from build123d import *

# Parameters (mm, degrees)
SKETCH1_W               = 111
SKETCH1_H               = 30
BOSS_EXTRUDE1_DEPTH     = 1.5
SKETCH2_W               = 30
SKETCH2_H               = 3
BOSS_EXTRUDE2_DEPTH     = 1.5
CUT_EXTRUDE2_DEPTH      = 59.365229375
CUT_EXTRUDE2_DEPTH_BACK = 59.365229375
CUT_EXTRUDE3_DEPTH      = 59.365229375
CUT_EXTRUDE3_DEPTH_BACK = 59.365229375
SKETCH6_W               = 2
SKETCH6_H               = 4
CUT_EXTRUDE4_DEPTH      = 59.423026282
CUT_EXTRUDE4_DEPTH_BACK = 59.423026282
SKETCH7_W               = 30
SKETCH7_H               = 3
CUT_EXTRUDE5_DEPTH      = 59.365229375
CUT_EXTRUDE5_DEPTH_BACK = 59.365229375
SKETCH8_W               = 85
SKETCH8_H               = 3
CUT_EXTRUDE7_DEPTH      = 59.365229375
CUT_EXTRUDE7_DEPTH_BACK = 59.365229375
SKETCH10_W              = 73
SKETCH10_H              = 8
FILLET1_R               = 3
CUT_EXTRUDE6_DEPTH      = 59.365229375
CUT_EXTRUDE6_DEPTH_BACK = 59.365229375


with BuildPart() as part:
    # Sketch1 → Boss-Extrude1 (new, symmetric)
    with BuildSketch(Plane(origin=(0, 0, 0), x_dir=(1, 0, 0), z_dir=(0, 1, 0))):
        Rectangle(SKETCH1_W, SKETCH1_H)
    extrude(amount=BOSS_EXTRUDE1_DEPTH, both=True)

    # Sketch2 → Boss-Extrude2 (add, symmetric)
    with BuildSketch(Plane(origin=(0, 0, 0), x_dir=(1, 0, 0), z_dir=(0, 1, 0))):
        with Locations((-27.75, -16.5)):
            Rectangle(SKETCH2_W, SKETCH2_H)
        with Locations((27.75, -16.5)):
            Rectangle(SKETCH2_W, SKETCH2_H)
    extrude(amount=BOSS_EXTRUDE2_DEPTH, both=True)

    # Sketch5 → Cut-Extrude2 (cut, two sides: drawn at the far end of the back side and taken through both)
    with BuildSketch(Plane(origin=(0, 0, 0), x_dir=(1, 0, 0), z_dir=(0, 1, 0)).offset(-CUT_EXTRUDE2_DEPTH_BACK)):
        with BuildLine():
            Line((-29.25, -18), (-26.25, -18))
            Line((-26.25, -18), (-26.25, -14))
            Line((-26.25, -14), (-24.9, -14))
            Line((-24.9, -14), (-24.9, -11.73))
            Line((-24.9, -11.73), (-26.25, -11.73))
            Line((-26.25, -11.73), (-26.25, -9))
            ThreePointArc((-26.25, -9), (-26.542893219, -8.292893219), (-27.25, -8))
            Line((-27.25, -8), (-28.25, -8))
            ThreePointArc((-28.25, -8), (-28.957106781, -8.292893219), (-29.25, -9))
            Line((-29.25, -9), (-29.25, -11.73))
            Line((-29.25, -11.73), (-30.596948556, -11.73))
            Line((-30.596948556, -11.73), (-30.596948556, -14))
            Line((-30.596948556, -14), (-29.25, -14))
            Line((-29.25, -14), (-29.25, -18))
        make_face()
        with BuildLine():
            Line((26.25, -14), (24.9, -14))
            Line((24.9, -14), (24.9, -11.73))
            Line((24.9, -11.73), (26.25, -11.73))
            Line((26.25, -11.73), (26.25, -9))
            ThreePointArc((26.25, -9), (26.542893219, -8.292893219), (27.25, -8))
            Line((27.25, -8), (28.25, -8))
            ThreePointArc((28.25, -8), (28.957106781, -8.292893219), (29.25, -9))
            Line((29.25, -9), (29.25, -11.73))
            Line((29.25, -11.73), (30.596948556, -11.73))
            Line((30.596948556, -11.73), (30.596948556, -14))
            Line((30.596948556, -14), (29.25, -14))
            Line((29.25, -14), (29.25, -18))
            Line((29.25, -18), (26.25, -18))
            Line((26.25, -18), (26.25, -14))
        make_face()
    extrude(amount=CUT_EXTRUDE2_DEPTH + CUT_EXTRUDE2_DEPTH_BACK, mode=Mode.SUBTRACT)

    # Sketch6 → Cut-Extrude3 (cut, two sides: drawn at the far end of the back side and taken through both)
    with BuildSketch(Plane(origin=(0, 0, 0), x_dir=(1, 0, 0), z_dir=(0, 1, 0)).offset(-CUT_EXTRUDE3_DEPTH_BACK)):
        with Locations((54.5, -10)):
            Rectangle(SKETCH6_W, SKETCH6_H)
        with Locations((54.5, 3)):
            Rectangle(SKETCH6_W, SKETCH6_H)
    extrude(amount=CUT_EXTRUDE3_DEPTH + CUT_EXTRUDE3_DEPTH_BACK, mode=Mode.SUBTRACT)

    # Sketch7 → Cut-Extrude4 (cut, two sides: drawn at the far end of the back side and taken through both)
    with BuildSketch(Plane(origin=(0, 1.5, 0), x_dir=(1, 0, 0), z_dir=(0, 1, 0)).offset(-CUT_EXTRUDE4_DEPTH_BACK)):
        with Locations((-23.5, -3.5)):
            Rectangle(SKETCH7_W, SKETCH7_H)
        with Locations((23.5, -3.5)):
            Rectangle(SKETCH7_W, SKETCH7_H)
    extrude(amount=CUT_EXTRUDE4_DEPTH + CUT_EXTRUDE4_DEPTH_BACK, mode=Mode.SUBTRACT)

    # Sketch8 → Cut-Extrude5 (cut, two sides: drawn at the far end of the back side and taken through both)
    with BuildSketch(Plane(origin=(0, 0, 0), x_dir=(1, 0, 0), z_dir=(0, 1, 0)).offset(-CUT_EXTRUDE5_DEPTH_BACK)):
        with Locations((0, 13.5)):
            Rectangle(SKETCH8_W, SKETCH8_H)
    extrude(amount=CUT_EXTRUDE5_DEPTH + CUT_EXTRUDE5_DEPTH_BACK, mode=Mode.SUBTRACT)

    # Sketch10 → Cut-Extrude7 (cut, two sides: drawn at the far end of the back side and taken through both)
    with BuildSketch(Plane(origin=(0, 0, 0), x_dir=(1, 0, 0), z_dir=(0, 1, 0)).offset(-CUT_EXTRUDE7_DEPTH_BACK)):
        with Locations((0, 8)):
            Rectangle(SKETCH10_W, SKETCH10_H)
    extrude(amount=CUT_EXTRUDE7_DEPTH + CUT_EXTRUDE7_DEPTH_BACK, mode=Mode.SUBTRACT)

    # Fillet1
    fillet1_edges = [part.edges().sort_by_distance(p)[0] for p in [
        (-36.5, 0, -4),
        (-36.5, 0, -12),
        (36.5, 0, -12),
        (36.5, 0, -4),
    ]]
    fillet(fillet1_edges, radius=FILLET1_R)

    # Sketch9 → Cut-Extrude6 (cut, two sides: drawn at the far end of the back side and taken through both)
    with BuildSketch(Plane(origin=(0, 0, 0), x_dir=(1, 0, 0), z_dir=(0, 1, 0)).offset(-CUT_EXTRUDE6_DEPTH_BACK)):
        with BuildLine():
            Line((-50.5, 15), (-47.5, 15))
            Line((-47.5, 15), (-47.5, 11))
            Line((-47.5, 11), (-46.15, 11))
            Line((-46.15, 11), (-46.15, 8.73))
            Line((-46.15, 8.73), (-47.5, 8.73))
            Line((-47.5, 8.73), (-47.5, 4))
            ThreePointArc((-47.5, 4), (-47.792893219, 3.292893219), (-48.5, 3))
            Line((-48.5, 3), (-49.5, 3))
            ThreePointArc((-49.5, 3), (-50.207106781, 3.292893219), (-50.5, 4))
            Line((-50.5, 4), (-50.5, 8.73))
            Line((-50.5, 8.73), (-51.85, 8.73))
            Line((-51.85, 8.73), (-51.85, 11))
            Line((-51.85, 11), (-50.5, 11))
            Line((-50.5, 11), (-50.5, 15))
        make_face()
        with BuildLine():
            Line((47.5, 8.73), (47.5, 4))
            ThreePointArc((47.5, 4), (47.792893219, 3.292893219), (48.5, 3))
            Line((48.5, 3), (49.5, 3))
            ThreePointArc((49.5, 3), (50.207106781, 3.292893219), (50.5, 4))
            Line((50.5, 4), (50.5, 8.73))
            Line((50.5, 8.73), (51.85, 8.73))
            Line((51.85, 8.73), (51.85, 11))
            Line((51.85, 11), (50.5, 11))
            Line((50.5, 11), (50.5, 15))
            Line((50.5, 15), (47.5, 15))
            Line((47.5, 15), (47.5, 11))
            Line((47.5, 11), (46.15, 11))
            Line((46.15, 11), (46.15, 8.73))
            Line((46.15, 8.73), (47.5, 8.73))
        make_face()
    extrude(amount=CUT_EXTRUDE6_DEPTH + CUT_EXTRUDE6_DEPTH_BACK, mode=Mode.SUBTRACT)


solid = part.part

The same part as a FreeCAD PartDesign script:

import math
import FreeCAD as App
import Part
import Sketcher

V = App.Vector
Q = App.Units.Quantity


def edges_at(feature, points):
    """Names of the edges that pass closest to the given points."""
    edges = feature.Shape.Edges
    near = lambda p: min(range(len(edges)), key=lambda i: edges[i].distToShape(Part.Vertex(*p))[0])
    return sorted({f"Edge{near(p) + 1}" for p in points})

doc = App.newDocument("Part")
params = doc.addObject("Spreadsheet::Sheet", "Params")
for row, (alias, value) in enumerate([
    ("sketch1_width", "111 mm"),
    ("sketch1_height", "30 mm"),
    ("pad1_length", "3 mm"),
    ("sketch2_width", "30 mm"),
    ("sketch2_height", "3 mm"),
    ("pad2_length", "3 mm"),
    ("sketch3_radius", "1 mm"),
    ("sketch3_width", "3 mm"),
    ("sketch3_height", "4 mm"),
    ("sketch3_width2", "1.35 mm"),
    ("sketch3_height2", "2.27 mm"),
    ("sketch4_width", "2 mm"),
    ("sketch4_height", "4 mm"),
    ("sketch5_width", "30 mm"),
    ("sketch5_height", "3 mm"),
    ("sketch6_width", "85 mm"),
    ("sketch6_height", "3 mm"),
    ("sketch7_width", "73 mm"),
    ("sketch7_height", "8 mm"),
    ("fillet_radius", "3 mm"),
    ("sketch8_radius", "1 mm"),
    ("sketch8_width", "3 mm"),
    ("sketch8_height", "4 mm"),
    ("sketch8_width2", "1.35 mm"),
    ("sketch8_height2", "2.27 mm"),
], start=1):
    params.set(f"A{row}", alias)
    params.set(f"B{row}", "=" + value)
    params.setAlias(f"B{row}", alias)

body = doc.addObject("PartDesign::Body", "Body")

# Sketch on XZ plane
sketch1 = body.newObject("Sketcher::SketchObject", "Sketch")
sketch1.AttachmentSupport = (doc.getObject("XZ_Plane"), [""])
sketch1.MapMode = "FlatFace"
sketch1.addGeometry(Part.LineSegment(V(-56, -15, 0), V(-56, 15, 0)), False)
sketch1.addGeometry(Part.LineSegment(V(-56, 15, 0), V(56, 15, 0)), False)
sketch1.addGeometry(Part.LineSegment(V(56, 15, 0), V(56, -15, 0)), False)
sketch1.addGeometry(Part.LineSegment(V(56, -15, 0), V(-56, -15, 0)), False)
sketch1.addConstraint(Sketcher.Constraint("Coincident", 0, 2, 1, 1))
sketch1.addConstraint(Sketcher.Constraint("Coincident", 1, 2, 2, 1))
sketch1.addConstraint(Sketcher.Constraint("Coincident", 2, 2, 3, 1))
sketch1.addConstraint(Sketcher.Constraint("Coincident", 3, 2, 0, 1))
sketch1.addConstraint(Sketcher.Constraint("Vertical", 0))
sketch1.addConstraint(Sketcher.Constraint("Horizontal", 1))
sketch1.addConstraint(Sketcher.Constraint("Vertical", 2))
sketch1.addConstraint(Sketcher.Constraint("Horizontal", 3))
sketch1.addConstraint(Sketcher.Constraint("Symmetric", 0, 2, 2, 2, -1, 1))
sketch1.addConstraint(Sketcher.Constraint("DistanceX", 1, 1, 1, 2, Q("111 mm")))
sketch1.addConstraint(Sketcher.Constraint("DistanceY", 0, 1, 0, 2, Q("30 mm")))
sketch1.setExpression("Constraints[9]", "Params.sketch1_width")
sketch1.setExpression("Constraints[10]", "Params.sketch1_height")
pad1 = body.newObject("PartDesign::Pad", "Pad")
pad1.Profile = sketch1
pad1.setExpression("Length", "Params.pad1_length")
pad1.Midplane = True

# Sketch on XZ plane
sketch2 = body.newObject("Sketcher::SketchObject", "Sketch001")
sketch2.AttachmentSupport = (doc.getObject("XZ_Plane"), [""])
sketch2.MapMode = "FlatFace"
sketch2.addGeometry(Part.LineSegment(V(-42.8, 15, 0), V(-42.8, 18, 0)), False)
sketch2.addGeometry(Part.LineSegment(V(-42.8, 18, 0), V(-12.8, 18, 0)), False)
sketch2.addGeometry(Part.LineSegment(V(-12.8, 18, 0), V(-12.8, 15, 0)), False)
sketch2.addGeometry(Part.LineSegment(V(-12.8, 15, 0), V(-42.8, 15, 0)), False)
sketch2.addGeometry(Part.LineSegment(V(12.8, 15, 0), V(12.8, 18, 0)), False)
sketch2.addGeometry(Part.LineSegment(V(12.8, 18, 0), V(42.8, 18, 0)), False)
sketch2.addGeometry(Part.LineSegment(V(42.8, 18, 0), V(42.8, 15, 0)), False)
sketch2.addGeometry(Part.LineSegment(V(42.8, 15, 0), V(12.8, 15, 0)), False)
sketch2.addConstraint(Sketcher.Constraint("Coincident", 0, 2, 1, 1))
sketch2.addConstraint(Sketcher.Constraint("Coincident", 1, 2, 2, 1))
sketch2.addConstraint(Sketcher.Constraint("Coincident", 2, 2, 3, 1))
sketch2.addConstraint(Sketcher.Constraint("Coincident", 3, 2, 0, 1))
sketch2.addConstraint(Sketcher.Constraint("Coincident", 4, 2, 5, 1))
sketch2.addConstraint(Sketcher.Constraint("Coincident", 5, 2, 6, 1))
sketch2.addConstraint(Sketcher.Constraint("Coincident", 6, 2, 7, 1))
sketch2.addConstraint(Sketcher.Constraint("Coincident", 7, 2, 4, 1))
sketch2.addConstraint(Sketcher.Constraint("Vertical", 0))
sketch2.addConstraint(Sketcher.Constraint("Horizontal", 1))
sketch2.addConstraint(Sketcher.Constraint("Vertical", 2))
sketch2.addConstraint(Sketcher.Constraint("Horizontal", 3))
sketch2.addConstraint(Sketcher.Constraint("Vertical", 4))
sketch2.addConstraint(Sketcher.Constraint("Horizontal", 5))
sketch2.addConstraint(Sketcher.Constraint("Vertical", 6))
sketch2.addConstraint(Sketcher.Constraint("Horizontal", 7))
sketch2.addConstraint(Sketcher.Constraint("Symmetric", 1, 2, 4, 2, -2))
sketch2.addConstraint(Sketcher.Constraint("Symmetric", 3, 2, 6, 2, -2))
sketch2.addConstraint(Sketcher.Constraint("DistanceX", 1, 1, 1, 2, Q("30 mm")))
sketch2.addConstraint(Sketcher.Constraint("DistanceY", 0, 1, 0, 2, Q("3 mm")))
sketch2.addConstraint(Sketcher.Constraint("DistanceY", -1, 1, 0, 2, Q("18 mm")))
sketch2.addConstraint(Sketcher.Constraint("DistanceX", 1, 2, 4, 2, Q("25.5 mm")))
sketch2.setExpression("Constraints[18]", "Params.sketch2_width")
sketch2.setExpression("Constraints[19]", "Params.sketch2_height")
pad2 = body.newObject("PartDesign::Pad", "Pad001")
pad2.Profile = sketch2
pad2.setExpression("Length", "Params.pad2_length")
pad2.Midplane = True

# Sketch on XZ plane
sketch3 = body.newObject("Sketcher::SketchObject", "Sketch002")
sketch3.AttachmentSupport = (doc.getObject("XZ_Plane"), [""])
sketch3.MapMode = "FlatFace"
sketch3.addGeometry(Part.LineSegment(V(-29.2, 18, 0), V(-26.2, 18, 0)), False)
sketch3.addGeometry(Part.LineSegment(V(-26.2, 18, 0), V(-26.2, 14, 0)), False)
sketch3.addGeometry(Part.LineSegment(V(-26.2, 14, 0), V(-24.9, 14, 0)), False)
sketch3.addGeometry(Part.LineSegment(V(-24.9, 14, 0), V(-24.9, 11.7, 0)), False)
sketch3.addGeometry(Part.LineSegment(V(-24.9, 11.7, 0), V(-26.2, 11.7, 0)), False)
sketch3.addGeometry(Part.LineSegment(V(-26.2, 11.7, 0), V(-26.2, 9, 0)), False)
sketch3.addGeometry(Part.ArcOfCircle(Part.Circle(V(-27.3, 9, 0), V(0, 0, 1), 1), math.radians(-90), math.radians(0)), False)
sketch3.addGeometry(Part.LineSegment(V(-27.2, 8, 0), V(-28.2, 8, 0)), False)
sketch3.addGeometry(Part.ArcOfCircle(Part.Circle(V(-28.2, 9, 0), V(0, 0, 1), 1), math.radians(-180), math.radians(-90)), False)
sketch3.addGeometry(Part.LineSegment(V(-29.2, 9, 0), V(-29.2, 11.7, 0)), False)
sketch3.addGeometry(Part.LineSegment(V(-29.2, 11.7, 0), V(-30.6, 11.7, 0)), False)
sketch3.addGeometry(Part.LineSegment(V(-30.6, 11.7, 0), V(-30.6, 14, 0)), False)
sketch3.addGeometry(Part.LineSegment(V(-30.6, 14, 0), V(-29.2, 14, 0)), False)
sketch3.addGeometry(Part.LineSegment(V(-29.2, 14, 0), V(-29.2, 18, 0)), False)
sketch3.addGeometry(Part.LineSegment(V(24.9, 14, 0), V(26.2, 14, 0)), False)
sketch3.addGeometry(Part.LineSegment(V(26.2, 14, 0), V(26.2, 18, 0)), False)
sketch3.addGeometry(Part.LineSegment(V(26.2, 18, 0), V(29.2, 18, 0)), False)
sketch3.addGeometry(Part.LineSegment(V(29.2, 18, 0), V(29.2, 14, 0)), False)
sketch3.addGeometry(Part.LineSegment(V(29.2, 14, 0), V(30.6, 14, 0)), False)
sketch3.addGeometry(Part.LineSegment(V(30.6, 14, 0), V(30.6, 11.7, 0)), False)
sketch3.addGeometry(Part.LineSegment(V(30.6, 11.7, 0), V(29.2, 11.7, 0)), False)
sketch3.addGeometry(Part.LineSegment(V(29.2, 11.7, 0), V(29.2, 9, 0)), False)
sketch3.addGeometry(Part.ArcOfCircle(Part.Circle(V(28.2, 9, 0), V(0, 0, 1), 1), math.radians(-90), math.radians(0)), False)
sketch3.addGeometry(Part.LineSegment(V(28.2, 8, 0), V(27.2, 8, 0)), False)
sketch3.addGeometry(Part.ArcOfCircle(Part.Circle(V(27.3, 9, 0), V(0, 0, 1), 1), math.radians(-180), math.radians(-90)), False)
sketch3.addGeometry(Part.LineSegment(V(26.2, 9, 0), V(26.2, 11.7, 0)), False)
sketch3.addGeometry(Part.LineSegment(V(26.2, 11.7, 0), V(24.9, 11.7, 0)), False)
sketch3.addGeometry(Part.LineSegment(V(24.9, 11.7, 0), V(24.9, 14, 0)), False)
sketch3.addConstraint(Sketcher.Constraint("Coincident", 0, 2, 1, 1))
sketch3.addConstraint(Sketcher.Constraint("Coincident", 1, 2, 2, 1))
sketch3.addConstraint(Sketcher.Constraint("Coincident", 2, 2, 3, 1))
sketch3.addConstraint(Sketcher.Constraint("Coincident", 3, 2, 4, 1))
sketch3.addConstraint(Sketcher.Constraint("Coincident", 4, 2, 5, 1))
sketch3.addConstraint(Sketcher.Constraint("Tangent", 5, 2, 6, 2))
sketch3.addConstraint(Sketcher.Constraint("Tangent", 6, 1, 7, 1))
sketch3.addConstraint(Sketcher.Constraint("Tangent", 7, 2, 8, 2))
sketch3.addConstraint(Sketcher.Constraint("Tangent", 8, 1, 9, 1))
sketch3.addConstraint(Sketcher.Constraint("Coincident", 9, 2, 10, 1))
sketch3.addConstraint(Sketcher.Constraint("Coincident", 10, 2, 11, 1))
sketch3.addConstraint(Sketcher.Constraint("Coincident", 11, 2, 12, 1))
sketch3.addConstraint(Sketcher.Constraint("Coincident", 12, 2, 13, 1))
sketch3.addConstraint(Sketcher.Constraint("Coincident", 13, 2, 0, 1))
sketch3.addConstraint(Sketcher.Constraint("Coincident", 14, 2, 15, 1))
sketch3.addConstraint(Sketcher.Constraint("Coincident", 15, 2, 16, 1))
sketch3.addConstraint(Sketcher.Constraint("Coincident", 16, 2, 17, 1))
sketch3.addConstraint(Sketcher.Constraint("Coincident", 17, 2, 18, 1))
sketch3.addConstraint(Sketcher.Constraint("Coincident", 18, 2, 19, 1))
sketch3.addConstraint(Sketcher.Constraint("Coincident", 19, 2, 20, 1))
sketch3.addConstraint(Sketcher.Constraint("Coincident", 20, 2, 21, 1))
sketch3.addConstraint(Sketcher.Constraint("Tangent", 21, 2, 22, 2))
sketch3.addConstraint(Sketcher.Constraint("Tangent", 22, 1, 23, 1))
sketch3.addConstraint(Sketcher.Constraint("Tangent", 23, 2, 24, 2))
sketch3.addConstraint(Sketcher.Constraint("Tangent", 24, 1, 25, 1))
sketch3.addConstraint(Sketcher.Constraint("Coincident", 25, 2, 26, 1))
sketch3.addConstraint(Sketcher.Constraint("Coincident", 26, 2, 27, 1))
sketch3.addConstraint(Sketcher.Constraint("Coincident", 27, 2, 14, 1))
sketch3.addConstraint(Sketcher.Constraint("Horizontal", 0))
sketch3.addConstraint(Sketcher.Constraint("Vertical", 1))
sketch3.addConstraint(Sketcher.Constraint("Horizontal", 2))
sketch3.addConstraint(Sketcher.Constraint("Vertical", 3))
sketch3.addConstraint(Sketcher.Constraint("Horizontal", 4))
sketch3.addConstraint(Sketcher.Constraint("Vertical", 5))
sketch3.addConstraint(Sketcher.Constraint("Horizontal", 7))
sketch3.addConstraint(Sketcher.Constraint("Vertical", 9))
sketch3.addConstraint(Sketcher.Constraint("Horizontal", 10))
sketch3.addConstraint(Sketcher.Constraint("Vertical", 11))
sketch3.addConstraint(Sketcher.Constraint("Horizontal", 12))
sketch3.addConstraint(Sketcher.Constraint("Vertical", 13))
sketch3.addConstraint(Sketcher.Constraint("Horizontal", 14))
sketch3.addConstraint(Sketcher.Constraint("Vertical", 15))
sketch3.addConstraint(Sketcher.Constraint("Horizontal", 16))
sketch3.addConstraint(Sketcher.Constraint("Vertical", 17))
sketch3.addConstraint(Sketcher.Constraint("Horizontal", 18))
sketch3.addConstraint(Sketcher.Constraint("Vertical", 19))
sketch3.addConstraint(Sketcher.Constraint("Horizontal", 20))
sketch3.addConstraint(Sketcher.Constraint("Vertical", 21))
sketch3.addConstraint(Sketcher.Constraint("Horizontal", 23))
sketch3.addConstraint(Sketcher.Constraint("Vertical", 25))
sketch3.addConstraint(Sketcher.Constraint("Horizontal", 26))
sketch3.addConstraint(Sketcher.Constraint("Vertical", 27))
sketch3.addConstraint(Sketcher.Constraint("Equal", 6, 8))
sketch3.addConstraint(Sketcher.Constraint("Equal", 8, 22))
sketch3.addConstraint(Sketcher.Constraint("Equal", 22, 24))
sketch3.addConstraint(Sketcher.Constraint("Symmetric", 8, 3, 22, 3, -2))
sketch3.addConstraint(Sketcher.Constraint("Symmetric", 1, 2, 14, 2, -2))
sketch3.addConstraint(Sketcher.Constraint("Symmetric", 13, 2, 16, 2, -2))
sketch3.addConstraint(Sketcher.Constraint("Symmetric", 11, 2, 18, 2, -2))
sketch3.addConstraint(Sketcher.Constraint("Symmetric", 4, 2, 25, 2, -2))
sketch3.addConstraint(Sketcher.Constraint("Horizontal", 4, 2, 9, 2))
sketch3.addConstraint(Sketcher.Constraint("Horizontal", 2, 2, 11, 2))
sketch3.addConstraint(Sketcher.Constraint("Horizontal", 10, 2, 19, 2))
sketch3.addConstraint(Sketcher.Constraint("Vertical", 1, 2, 4, 2))
sketch3.addConstraint(Sketcher.Constraint("Vertical", 9, 2, 12, 2))
sketch3.addConstraint(Sketcher.Constraint("Equal", 4, 14))
sketch3.addConstraint(Sketcher.Constraint("Radius", 6, Q("1 mm")))
sketch3.addConstraint(Sketcher.Constraint("DistanceX", 0, 1, 0, 2, Q("3 mm")))
sketch3.addConstraint(Sketcher.Constraint("DistanceY", 1, 2, 1, 1, Q("4 mm")))
sketch3.addConstraint(Sketcher.Constraint("DistanceY", -1, 1, 6, 3, Q("9 mm")))
sketch3.addConstraint(Sketcher.Constraint("DistanceY", -1, 1, 0, 2, Q("18 mm")))
sketch3.addConstraint(Sketcher.Constraint("DistanceX", 2, 1, 2, 2, Q("1.35 mm")))
sketch3.addConstraint(Sketcher.Constraint("DistanceY", 3, 2, 3, 1, Q("2.27 mm")))
sketch3.addConstraint(Sketcher.Constraint("DistanceX", 2, 2, -1, 1, Q("24.9 mm")))
sketch3.addConstraint(Sketcher.Constraint("DistanceX", 10, 2, 10, 1, Q("1.346949 mm")))
sketch3.setExpression("Constraints[66]", "Params.sketch3_radius")
sketch3.setExpression("Constraints[67]", "Params.sketch3_width")
sketch3.setExpression("Constraints[68]", "Params.sketch3_height")
sketch3.setExpression("Constraints[71]", "Params.sketch3_width2")
sketch3.setExpression("Constraints[72]", "Params.sketch3_height2")
pocket1 = body.newObject("PartDesign::Pocket", "Pocket")
pocket1.Profile = sketch3
pocket1.Type = "ThroughAll"
pocket1.Midplane = True

# Sketch on XZ plane
sketch4 = body.newObject("Sketcher::SketchObject", "Sketch003")
sketch4.AttachmentSupport = (doc.getObject("XZ_Plane"), [""])
sketch4.MapMode = "FlatFace"
sketch4.addGeometry(Part.LineSegment(V(53.5, 8, 0), V(53.5, 12, 0)), False)
sketch4.addGeometry(Part.LineSegment(V(53.5, 12, 0), V(55.5, 12, 0)), False)
sketch4.addGeometry(Part.LineSegment(V(55.5, 12, 0), V(55.5, 8, 0)), False)
sketch4.addGeometry(Part.LineSegment(V(55.5, 8, 0), V(53.5, 8, 0)), False)
sketch4.addGeometry(Part.LineSegment(V(53.5, -5, 0), V(53.5, -1, 0)), False)
sketch4.addGeometry(Part.LineSegment(V(53.5, -1, 0), V(55.5, -1, 0)), False)
sketch4.addGeometry(Part.LineSegment(V(55.5, -1, 0), V(55.5, -5, 0)), False)
sketch4.addGeometry(Part.LineSegment(V(55.5, -5, 0), V(53.5, -5, 0)), False)
sketch4.addConstraint(Sketcher.Constraint("Coincident", 0, 2, 1, 1))
sketch4.addConstraint(Sketcher.Constraint("Coincident", 1, 2, 2, 1))
sketch4.addConstraint(Sketcher.Constraint("Coincident", 2, 2, 3, 1))
sketch4.addConstraint(Sketcher.Constraint("Coincident", 3, 2, 0, 1))
sketch4.addConstraint(Sketcher.Constraint("Coincident", 4, 2, 5, 1))
sketch4.addConstraint(Sketcher.Constraint("Coincident", 5, 2, 6, 1))
sketch4.addConstraint(Sketcher.Constraint("Coincident", 6, 2, 7, 1))
sketch4.addConstraint(Sketcher.Constraint("Coincident", 7, 2, 4, 1))
sketch4.addConstraint(Sketcher.Constraint("Vertical", 0))
sketch4.addConstraint(Sketcher.Constraint("Horizontal", 1))
sketch4.addConstraint(Sketcher.Constraint("Vertical", 2))
sketch4.addConstraint(Sketcher.Constraint("Horizontal", 3))
sketch4.addConstraint(Sketcher.Constraint("Vertical", 4))
sketch4.addConstraint(Sketcher.Constraint("Horizontal", 5))
sketch4.addConstraint(Sketcher.Constraint("Vertical", 6))
sketch4.addConstraint(Sketcher.Constraint("Horizontal", 7))
sketch4.addConstraint(Sketcher.Constraint("Vertical", 3, 2, 4, 2))
sketch4.addConstraint(Sketcher.Constraint("Vertical", 2, 2, 5, 2))
sketch4.addConstraint(Sketcher.Constraint("Equal", 2, 4))
sketch4.addConstraint(Sketcher.Constraint("DistanceX", 1, 1, 1, 2, Q("2 mm")))
sketch4.addConstraint(Sketcher.Constraint("DistanceY", 0, 1, 0, 2, Q("4 mm")))
sketch4.addConstraint(Sketcher.Constraint("DistanceY", -1, 1, 0, 2, Q("12 mm")))
sketch4.addConstraint(Sketcher.Constraint("DistanceY", 4, 2, -1, 1, Q("1 mm")))
sketch4.addConstraint(Sketcher.Constraint("DistanceX", -1, 1, 0, 2, Q("53.5 mm")))
sketch4.setExpression("Constraints[19]", "Params.sketch4_width")
sketch4.setExpression("Constraints[20]", "Params.sketch4_height")
pocket2 = body.newObject("PartDesign::Pocket", "Pocket001")
pocket2.Profile = sketch4
pocket2.Type = "ThroughAll"
pocket2.Midplane = True

# Sketch on XZ plane
sketch5 = body.newObject("Sketcher::SketchObject", "Sketch004")
sketch5.AttachmentSupport = (doc.getObject("XZ_Plane"), [""])
sketch5.MapMode = "FlatFace"
sketch5.AttachmentOffset = App.Placement(V(0, 0, -1.5), App.Rotation())
sketch5.addGeometry(Part.LineSegment(V(-38.5, 2, 0), V(-38.5, 5, 0)), False)
sketch5.addGeometry(Part.LineSegment(V(-38.5, 5, 0), V(-8.5, 5, 0)), False)
sketch5.addGeometry(Part.LineSegment(V(-8.5, 5, 0), V(-8.5, 2, 0)), False)
sketch5.addGeometry(Part.LineSegment(V(-8.5, 2, 0), V(-38.5, 2, 0)), False)
sketch5.addGeometry(Part.LineSegment(V(8.5, 2, 0), V(8.5, 5, 0)), False)
sketch5.addGeometry(Part.LineSegment(V(8.5, 5, 0), V(38.5, 5, 0)), False)
sketch5.addGeometry(Part.LineSegment(V(38.5, 5, 0), V(38.5, 2, 0)), False)
sketch5.addGeometry(Part.LineSegment(V(38.5, 2, 0), V(8.5, 2, 0)), False)
sketch5.addConstraint(Sketcher.Constraint("Coincident", 0, 2, 1, 1))
sketch5.addConstraint(Sketcher.Constraint("Coincident", 1, 2, 2, 1))
sketch5.addConstraint(Sketcher.Constraint("Coincident", 2, 2, 3, 1))
sketch5.addConstraint(Sketcher.Constraint("Coincident", 3, 2, 0, 1))
sketch5.addConstraint(Sketcher.Constraint("Coincident", 4, 2, 5, 1))
sketch5.addConstraint(Sketcher.Constraint("Coincident", 5, 2, 6, 1))
sketch5.addConstraint(Sketcher.Constraint("Coincident", 6, 2, 7, 1))
sketch5.addConstraint(Sketcher.Constraint("Coincident", 7, 2, 4, 1))
sketch5.addConstraint(Sketcher.Constraint("Vertical", 0))
sketch5.addConstraint(Sketcher.Constraint("Horizontal", 1))
sketch5.addConstraint(Sketcher.Constraint("Vertical", 2))
sketch5.addConstraint(Sketcher.Constraint("Horizontal", 3))
sketch5.addConstraint(Sketcher.Constraint("Vertical", 4))
sketch5.addConstraint(Sketcher.Constraint("Horizontal", 5))
sketch5.addConstraint(Sketcher.Constraint("Vertical", 6))
sketch5.addConstraint(Sketcher.Constraint("Horizontal", 7))
sketch5.addConstraint(Sketcher.Constraint("Symmetric", 1, 2, 4, 2, -2))
sketch5.addConstraint(Sketcher.Constraint("Symmetric", 3, 2, 6, 2, -2))
sketch5.addConstraint(Sketcher.Constraint("DistanceX", 1, 1, 1, 2, Q("30 mm")))
sketch5.addConstraint(Sketcher.Constraint("DistanceY", 0, 1, 0, 2, Q("3 mm")))
sketch5.addConstraint(Sketcher.Constraint("DistanceY", -1, 1, 0, 2, Q("5 mm")))
sketch5.addConstraint(Sketcher.Constraint("DistanceX", 1, 2, 4, 2, Q("17 mm")))
sketch5.setExpression("Constraints[18]", "Params.sketch5_width")
sketch5.setExpression("Constraints[19]", "Params.sketch5_height")
pocket3 = body.newObject("PartDesign::Pocket", "Pocket002")
pocket3.Profile = sketch5
pocket3.Type = "ThroughAll"
pocket3.Midplane = True

# Sketch on XZ plane
sketch6 = body.newObject("Sketcher::SketchObject", "Sketch005")
sketch6.AttachmentSupport = (doc.getObject("XZ_Plane"), [""])
sketch6.MapMode = "FlatFace"
sketch6.addGeometry(Part.LineSegment(V(-42.5, -15, 0), V(-42.5, -12, 0)), False)
sketch6.addGeometry(Part.LineSegment(V(-42.5, -12, 0), V(42.5, -12, 0)), False)
sketch6.addGeometry(Part.LineSegment(V(42.5, -12, 0), V(42.5, -15, 0)), False)
sketch6.addGeometry(Part.LineSegment(V(42.5, -15, 0), V(-42.5, -15, 0)), False)
sketch6.addConstraint(Sketcher.Constraint("Coincident", 0, 2, 1, 1))
sketch6.addConstraint(Sketcher.Constraint("Coincident", 1, 2, 2, 1))
sketch6.addConstraint(Sketcher.Constraint("Coincident", 2, 2, 3, 1))
sketch6.addConstraint(Sketcher.Constraint("Coincident", 3, 2, 0, 1))
sketch6.addConstraint(Sketcher.Constraint("Vertical", 0))
sketch6.addConstraint(Sketcher.Constraint("Horizontal", 1))
sketch6.addConstraint(Sketcher.Constraint("Vertical", 2))
sketch6.addConstraint(Sketcher.Constraint("Horizontal", 3))
sketch6.addConstraint(Sketcher.Constraint("DistanceX", 1, 1, 1, 2, Q("85 mm")))
sketch6.addConstraint(Sketcher.Constraint("DistanceY", 0, 1, 0, 2, Q("3 mm")))
sketch6.addConstraint(Sketcher.Constraint("DistanceY", 0, 2, -1, 1, Q("12 mm")))
sketch6.addConstraint(Sketcher.Constraint("DistanceX", 0, 2, -1, 1, Q("42.5 mm")))
sketch6.setExpression("Constraints[8]", "Params.sketch6_width")
sketch6.setExpression("Constraints[9]", "Params.sketch6_height")
pocket4 = body.newObject("PartDesign::Pocket", "Pocket003")
pocket4.Profile = sketch6
pocket4.Type = "ThroughAll"
pocket4.Midplane = True

# Sketch on XZ plane
sketch7 = body.newObject("Sketcher::SketchObject", "Sketch006")
sketch7.AttachmentSupport = (doc.getObject("XZ_Plane"), [""])
sketch7.MapMode = "FlatFace"
sketch7.addGeometry(Part.LineSegment(V(-36, -12, 0), V(-36, -4, 0)), False)
sketch7.addGeometry(Part.LineSegment(V(-36, -4, 0), V(36, -4, 0)), False)
sketch7.addGeometry(Part.LineSegment(V(36, -4, 0), V(36, -12, 0)), False)
sketch7.addGeometry(Part.LineSegment(V(36, -12, 0), V(-36, -12, 0)), False)
sketch7.addConstraint(Sketcher.Constraint("Coincident", 0, 2, 1, 1))
sketch7.addConstraint(Sketcher.Constraint("Coincident", 1, 2, 2, 1))
sketch7.addConstraint(Sketcher.Constraint("Coincident", 2, 2, 3, 1))
sketch7.addConstraint(Sketcher.Constraint("Coincident", 3, 2, 0, 1))
sketch7.addConstraint(Sketcher.Constraint("Vertical", 0))
sketch7.addConstraint(Sketcher.Constraint("Horizontal", 1))
sketch7.addConstraint(Sketcher.Constraint("Vertical", 2))
sketch7.addConstraint(Sketcher.Constraint("Horizontal", 3))
sketch7.addConstraint(Sketcher.Constraint("DistanceX", 1, 1, 1, 2, Q("73 mm")))
sketch7.addConstraint(Sketcher.Constraint("DistanceY", 0, 1, 0, 2, Q("8 mm")))
sketch7.addConstraint(Sketcher.Constraint("DistanceY", 0, 2, -1, 1, Q("4 mm")))
sketch7.addConstraint(Sketcher.Constraint("DistanceX", 0, 2, -1, 1, Q("36.5 mm")))
sketch7.setExpression("Constraints[8]", "Params.sketch7_width")
sketch7.setExpression("Constraints[9]", "Params.sketch7_height")
pocket5 = body.newObject("PartDesign::Pocket", "Pocket004")
pocket5.Profile = sketch7
pocket5.Type = "ThroughAll"
pocket5.Midplane = True
doc.recompute()

fillet = body.newObject("PartDesign::Fillet", "Fillet")
fillet.Base = (pocket5, edges_at(pocket5, [
    (-36.5, 0, -4),
    (-36.5, 0, -12),
    (36.5, 0, -12),
    (36.5, 0, -4),
]))
fillet.setExpression("Radius", "Params.fillet_radius")

# Sketch on XZ plane
sketch8 = body.newObject("Sketcher::SketchObject", "Sketch007")
sketch8.AttachmentSupport = (doc.getObject("XZ_Plane"), [""])
sketch8.MapMode = "FlatFace"
sketch8.addGeometry(Part.LineSegment(V(-47.5, -15, 0), V(-50.5, -15, 0)), False)
sketch8.addGeometry(Part.LineSegment(V(-50.5, -15, 0), V(-50.5, -11, 0)), False)
sketch8.addGeometry(Part.LineSegment(V(-50.5, -11, 0), V(-51.9, -11, 0)), False)
sketch8.addGeometry(Part.LineSegment(V(-51.9, -11, 0), V(-51.9, -8.7, 0)), False)
sketch8.addGeometry(Part.LineSegment(V(-51.9, -8.7, 0), V(-50.5, -8.7, 0)), False)
sketch8.addGeometry(Part.LineSegment(V(-50.5, -8.7, 0), V(-50.5, -4, 0)), False)
sketch8.addGeometry(Part.ArcOfCircle(Part.Circle(V(-49.5, -4, 0), V(0, 0, 1), 1), math.radians(90), math.radians(180)), False)
sketch8.addGeometry(Part.LineSegment(V(-49.5, -3, 0), V(-48.5, -3, 0)), False)
sketch8.addGeometry(Part.ArcOfCircle(Part.Circle(V(-48.5, -4, 0), V(0, 0, 1), 1), math.radians(0), math.radians(90)), False)
sketch8.addGeometry(Part.LineSegment(V(-47.5, -4, 0), V(-47.5, -8.7, 0)), False)
sketch8.addGeometry(Part.LineSegment(V(-47.5, -8.7, 0), V(-46.1, -8.7, 0)), False)
sketch8.addGeometry(Part.LineSegment(V(-46.1, -8.7, 0), V(-46.1, -11, 0)), False)
sketch8.addGeometry(Part.LineSegment(V(-46.1, -11, 0), V(-47.5, -11, 0)), False)
sketch8.addGeometry(Part.LineSegment(V(-47.5, -11, 0), V(-47.5, -15, 0)), False)
sketch8.addGeometry(Part.LineSegment(V(47.5, -8.7, 0), V(47.5, -4, 0)), False)
sketch8.addGeometry(Part.ArcOfCircle(Part.Circle(V(48.5, -4, 0), V(0, 0, 1), 1), math.radians(90), math.radians(180)), False)
sketch8.addGeometry(Part.LineSegment(V(48.5, -3, 0), V(49.5, -3, 0)), False)
sketch8.addGeometry(Part.ArcOfCircle(Part.Circle(V(49.5, -4, 0), V(0, 0, 1), 1), math.radians(0), math.radians(90)), False)
sketch8.addGeometry(Part.LineSegment(V(50.5, -4, 0), V(50.5, -8.7, 0)), False)
sketch8.addGeometry(Part.LineSegment(V(50.5, -8.7, 0), V(51.9, -8.7, 0)), False)
sketch8.addGeometry(Part.LineSegment(V(51.9, -8.7, 0), V(51.9, -11, 0)), False)
sketch8.addGeometry(Part.LineSegment(V(51.9, -11, 0), V(50.5, -11, 0)), False)
sketch8.addGeometry(Part.LineSegment(V(50.5, -11, 0), V(50.5, -15, 0)), False)
sketch8.addGeometry(Part.LineSegment(V(50.5, -15, 0), V(47.5, -15, 0)), False)
sketch8.addGeometry(Part.LineSegment(V(47.5, -15, 0), V(47.5, -11, 0)), False)
sketch8.addGeometry(Part.LineSegment(V(47.5, -11, 0), V(46.1, -11, 0)), False)
sketch8.addGeometry(Part.LineSegment(V(46.1, -11, 0), V(46.1, -8.7, 0)), False)
sketch8.addGeometry(Part.LineSegment(V(46.1, -8.7, 0), V(47.5, -8.7, 0)), False)
sketch8.addConstraint(Sketcher.Constraint("Coincident", 0, 2, 1, 1))
sketch8.addConstraint(Sketcher.Constraint("Coincident", 1, 2, 2, 1))
sketch8.addConstraint(Sketcher.Constraint("Coincident", 2, 2, 3, 1))
sketch8.addConstraint(Sketcher.Constraint("Coincident", 3, 2, 4, 1))
sketch8.addConstraint(Sketcher.Constraint("Coincident", 4, 2, 5, 1))
sketch8.addConstraint(Sketcher.Constraint("Tangent", 5, 2, 6, 2))
sketch8.addConstraint(Sketcher.Constraint("Tangent", 6, 1, 7, 1))
sketch8.addConstraint(Sketcher.Constraint("Tangent", 7, 2, 8, 2))
sketch8.addConstraint(Sketcher.Constraint("Tangent", 8, 1, 9, 1))
sketch8.addConstraint(Sketcher.Constraint("Coincident", 9, 2, 10, 1))
sketch8.addConstraint(Sketcher.Constraint("Coincident", 10, 2, 11, 1))
sketch8.addConstraint(Sketcher.Constraint("Coincident", 11, 2, 12, 1))
sketch8.addConstraint(Sketcher.Constraint("Coincident", 12, 2, 13, 1))
sketch8.addConstraint(Sketcher.Constraint("Coincident", 13, 2, 0, 1))
sketch8.addConstraint(Sketcher.Constraint("Tangent", 14, 2, 15, 2))
sketch8.addConstraint(Sketcher.Constraint("Tangent", 15, 1, 16, 1))
sketch8.addConstraint(Sketcher.Constraint("Tangent", 16, 2, 17, 2))
sketch8.addConstraint(Sketcher.Constraint("Tangent", 17, 1, 18, 1))
sketch8.addConstraint(Sketcher.Constraint("Coincident", 18, 2, 19, 1))
sketch8.addConstraint(Sketcher.Constraint("Coincident", 19, 2, 20, 1))
sketch8.addConstraint(Sketcher.Constraint("Coincident", 20, 2, 21, 1))
sketch8.addConstraint(Sketcher.Constraint("Coincident", 21, 2, 22, 1))
sketch8.addConstraint(Sketcher.Constraint("Coincident", 22, 2, 23, 1))
sketch8.addConstraint(Sketcher.Constraint("Coincident", 23, 2, 24, 1))
sketch8.addConstraint(Sketcher.Constraint("Coincident", 24, 2, 25, 1))
sketch8.addConstraint(Sketcher.Constraint("Coincident", 25, 2, 26, 1))
sketch8.addConstraint(Sketcher.Constraint("Coincident", 26, 2, 27, 1))
sketch8.addConstraint(Sketcher.Constraint("Coincident", 27, 2, 14, 1))
sketch8.addConstraint(Sketcher.Constraint("Horizontal", 0))
sketch8.addConstraint(Sketcher.Constraint("Vertical", 1))
sketch8.addConstraint(Sketcher.Constraint("Horizontal", 2))
sketch8.addConstraint(Sketcher.Constraint("Vertical", 3))
sketch8.addConstraint(Sketcher.Constraint("Horizontal", 4))
sketch8.addConstraint(Sketcher.Constraint("Vertical", 5))
sketch8.addConstraint(Sketcher.Constraint("Horizontal", 7))
sketch8.addConstraint(Sketcher.Constraint("Vertical", 9))
sketch8.addConstraint(Sketcher.Constraint("Horizontal", 10))
sketch8.addConstraint(Sketcher.Constraint("Vertical", 11))
sketch8.addConstraint(Sketcher.Constraint("Horizontal", 12))
sketch8.addConstraint(Sketcher.Constraint("Vertical", 13))
sketch8.addConstraint(Sketcher.Constraint("Vertical", 14))
sketch8.addConstraint(Sketcher.Constraint("Horizontal", 16))
sketch8.addConstraint(Sketcher.Constraint("Vertical", 18))
sketch8.addConstraint(Sketcher.Constraint("Horizontal", 19))
sketch8.addConstraint(Sketcher.Constraint("Vertical", 20))
sketch8.addConstraint(Sketcher.Constraint("Horizontal", 21))
sketch8.addConstraint(Sketcher.Constraint("Vertical", 22))
sketch8.addConstraint(Sketcher.Constraint("Horizontal", 23))
sketch8.addConstraint(Sketcher.Constraint("Vertical", 24))
sketch8.addConstraint(Sketcher.Constraint("Horizontal", 25))
sketch8.addConstraint(Sketcher.Constraint("Vertical", 26))
sketch8.addConstraint(Sketcher.Constraint("Horizontal", 27))
sketch8.addConstraint(Sketcher.Constraint("Equal", 6, 8))
sketch8.addConstraint(Sketcher.Constraint("Equal", 8, 15))
sketch8.addConstraint(Sketcher.Constraint("Equal", 15, 17))
sketch8.addConstraint(Sketcher.Constraint("Symmetric", 8, 3, 15, 3, -2))
sketch8.addConstraint(Sketcher.Constraint("Symmetric", 4, 2, 18, 2, -2))
sketch8.addConstraint(Sketcher.Constraint("Symmetric", 2, 2, 20, 2, -2))
sketch8.addConstraint(Sketcher.Constraint("Symmetric", 0, 2, 22, 2, -2))
sketch8.addConstraint(Sketcher.Constraint("Symmetric", 12, 2, 24, 2, -2))
sketch8.addConstraint(Sketcher.Constraint("Symmetric", 10, 2, 26, 2, -2))
sketch8.addConstraint(Sketcher.Constraint("Horizontal", 4, 2, 9, 2))
sketch8.addConstraint(Sketcher.Constraint("Horizontal", 2, 2, 11, 2))
sketch8.addConstraint(Sketcher.Constraint("Vertical", 1, 2, 4, 2))
sketch8.addConstraint(Sketcher.Constraint("Vertical", 9, 2, 12, 2))
sketch8.addConstraint(Sketcher.Constraint("Equal", 4, 10))
sketch8.addConstraint(Sketcher.Constraint("Radius", 6, Q("1 mm")))
sketch8.addConstraint(Sketcher.Constraint("DistanceX", 0, 2, 0, 1, Q("3 mm")))
sketch8.addConstraint(Sketcher.Constraint("DistanceY", 1, 1, 1, 2, Q("4 mm")))
sketch8.addConstraint(Sketcher.Constraint("DistanceY", 6, 3, -1, 1, Q("4 mm")))
sketch8.addConstraint(Sketcher.Constraint("DistanceY", 0, 2, -1, 1, Q("15 mm")))
sketch8.addConstraint(Sketcher.Constraint("DistanceX", 8, 3, 15, 3, Q("97 mm")))
sketch8.addConstraint(Sketcher.Constraint("DistanceX", 2, 2, 2, 1, Q("1.35 mm")))
sketch8.addConstraint(Sketcher.Constraint("DistanceY", 3, 1, 3, 2, Q("2.27 mm")))
sketch8.setExpression("Constraints[66]", "Params.sketch8_radius")
sketch8.setExpression("Constraints[67]", "Params.sketch8_width")
sketch8.setExpression("Constraints[68]", "Params.sketch8_height")
sketch8.setExpression("Constraints[72]", "Params.sketch8_width2")
sketch8.setExpression("Constraints[73]", "Params.sketch8_height2")
pocket6 = body.newObject("PartDesign::Pocket", "Pocket005")
pocket6.Profile = sketch8
pocket6.Type = "ThroughAll"
pocket6.Midplane = True

doc.recompute()
